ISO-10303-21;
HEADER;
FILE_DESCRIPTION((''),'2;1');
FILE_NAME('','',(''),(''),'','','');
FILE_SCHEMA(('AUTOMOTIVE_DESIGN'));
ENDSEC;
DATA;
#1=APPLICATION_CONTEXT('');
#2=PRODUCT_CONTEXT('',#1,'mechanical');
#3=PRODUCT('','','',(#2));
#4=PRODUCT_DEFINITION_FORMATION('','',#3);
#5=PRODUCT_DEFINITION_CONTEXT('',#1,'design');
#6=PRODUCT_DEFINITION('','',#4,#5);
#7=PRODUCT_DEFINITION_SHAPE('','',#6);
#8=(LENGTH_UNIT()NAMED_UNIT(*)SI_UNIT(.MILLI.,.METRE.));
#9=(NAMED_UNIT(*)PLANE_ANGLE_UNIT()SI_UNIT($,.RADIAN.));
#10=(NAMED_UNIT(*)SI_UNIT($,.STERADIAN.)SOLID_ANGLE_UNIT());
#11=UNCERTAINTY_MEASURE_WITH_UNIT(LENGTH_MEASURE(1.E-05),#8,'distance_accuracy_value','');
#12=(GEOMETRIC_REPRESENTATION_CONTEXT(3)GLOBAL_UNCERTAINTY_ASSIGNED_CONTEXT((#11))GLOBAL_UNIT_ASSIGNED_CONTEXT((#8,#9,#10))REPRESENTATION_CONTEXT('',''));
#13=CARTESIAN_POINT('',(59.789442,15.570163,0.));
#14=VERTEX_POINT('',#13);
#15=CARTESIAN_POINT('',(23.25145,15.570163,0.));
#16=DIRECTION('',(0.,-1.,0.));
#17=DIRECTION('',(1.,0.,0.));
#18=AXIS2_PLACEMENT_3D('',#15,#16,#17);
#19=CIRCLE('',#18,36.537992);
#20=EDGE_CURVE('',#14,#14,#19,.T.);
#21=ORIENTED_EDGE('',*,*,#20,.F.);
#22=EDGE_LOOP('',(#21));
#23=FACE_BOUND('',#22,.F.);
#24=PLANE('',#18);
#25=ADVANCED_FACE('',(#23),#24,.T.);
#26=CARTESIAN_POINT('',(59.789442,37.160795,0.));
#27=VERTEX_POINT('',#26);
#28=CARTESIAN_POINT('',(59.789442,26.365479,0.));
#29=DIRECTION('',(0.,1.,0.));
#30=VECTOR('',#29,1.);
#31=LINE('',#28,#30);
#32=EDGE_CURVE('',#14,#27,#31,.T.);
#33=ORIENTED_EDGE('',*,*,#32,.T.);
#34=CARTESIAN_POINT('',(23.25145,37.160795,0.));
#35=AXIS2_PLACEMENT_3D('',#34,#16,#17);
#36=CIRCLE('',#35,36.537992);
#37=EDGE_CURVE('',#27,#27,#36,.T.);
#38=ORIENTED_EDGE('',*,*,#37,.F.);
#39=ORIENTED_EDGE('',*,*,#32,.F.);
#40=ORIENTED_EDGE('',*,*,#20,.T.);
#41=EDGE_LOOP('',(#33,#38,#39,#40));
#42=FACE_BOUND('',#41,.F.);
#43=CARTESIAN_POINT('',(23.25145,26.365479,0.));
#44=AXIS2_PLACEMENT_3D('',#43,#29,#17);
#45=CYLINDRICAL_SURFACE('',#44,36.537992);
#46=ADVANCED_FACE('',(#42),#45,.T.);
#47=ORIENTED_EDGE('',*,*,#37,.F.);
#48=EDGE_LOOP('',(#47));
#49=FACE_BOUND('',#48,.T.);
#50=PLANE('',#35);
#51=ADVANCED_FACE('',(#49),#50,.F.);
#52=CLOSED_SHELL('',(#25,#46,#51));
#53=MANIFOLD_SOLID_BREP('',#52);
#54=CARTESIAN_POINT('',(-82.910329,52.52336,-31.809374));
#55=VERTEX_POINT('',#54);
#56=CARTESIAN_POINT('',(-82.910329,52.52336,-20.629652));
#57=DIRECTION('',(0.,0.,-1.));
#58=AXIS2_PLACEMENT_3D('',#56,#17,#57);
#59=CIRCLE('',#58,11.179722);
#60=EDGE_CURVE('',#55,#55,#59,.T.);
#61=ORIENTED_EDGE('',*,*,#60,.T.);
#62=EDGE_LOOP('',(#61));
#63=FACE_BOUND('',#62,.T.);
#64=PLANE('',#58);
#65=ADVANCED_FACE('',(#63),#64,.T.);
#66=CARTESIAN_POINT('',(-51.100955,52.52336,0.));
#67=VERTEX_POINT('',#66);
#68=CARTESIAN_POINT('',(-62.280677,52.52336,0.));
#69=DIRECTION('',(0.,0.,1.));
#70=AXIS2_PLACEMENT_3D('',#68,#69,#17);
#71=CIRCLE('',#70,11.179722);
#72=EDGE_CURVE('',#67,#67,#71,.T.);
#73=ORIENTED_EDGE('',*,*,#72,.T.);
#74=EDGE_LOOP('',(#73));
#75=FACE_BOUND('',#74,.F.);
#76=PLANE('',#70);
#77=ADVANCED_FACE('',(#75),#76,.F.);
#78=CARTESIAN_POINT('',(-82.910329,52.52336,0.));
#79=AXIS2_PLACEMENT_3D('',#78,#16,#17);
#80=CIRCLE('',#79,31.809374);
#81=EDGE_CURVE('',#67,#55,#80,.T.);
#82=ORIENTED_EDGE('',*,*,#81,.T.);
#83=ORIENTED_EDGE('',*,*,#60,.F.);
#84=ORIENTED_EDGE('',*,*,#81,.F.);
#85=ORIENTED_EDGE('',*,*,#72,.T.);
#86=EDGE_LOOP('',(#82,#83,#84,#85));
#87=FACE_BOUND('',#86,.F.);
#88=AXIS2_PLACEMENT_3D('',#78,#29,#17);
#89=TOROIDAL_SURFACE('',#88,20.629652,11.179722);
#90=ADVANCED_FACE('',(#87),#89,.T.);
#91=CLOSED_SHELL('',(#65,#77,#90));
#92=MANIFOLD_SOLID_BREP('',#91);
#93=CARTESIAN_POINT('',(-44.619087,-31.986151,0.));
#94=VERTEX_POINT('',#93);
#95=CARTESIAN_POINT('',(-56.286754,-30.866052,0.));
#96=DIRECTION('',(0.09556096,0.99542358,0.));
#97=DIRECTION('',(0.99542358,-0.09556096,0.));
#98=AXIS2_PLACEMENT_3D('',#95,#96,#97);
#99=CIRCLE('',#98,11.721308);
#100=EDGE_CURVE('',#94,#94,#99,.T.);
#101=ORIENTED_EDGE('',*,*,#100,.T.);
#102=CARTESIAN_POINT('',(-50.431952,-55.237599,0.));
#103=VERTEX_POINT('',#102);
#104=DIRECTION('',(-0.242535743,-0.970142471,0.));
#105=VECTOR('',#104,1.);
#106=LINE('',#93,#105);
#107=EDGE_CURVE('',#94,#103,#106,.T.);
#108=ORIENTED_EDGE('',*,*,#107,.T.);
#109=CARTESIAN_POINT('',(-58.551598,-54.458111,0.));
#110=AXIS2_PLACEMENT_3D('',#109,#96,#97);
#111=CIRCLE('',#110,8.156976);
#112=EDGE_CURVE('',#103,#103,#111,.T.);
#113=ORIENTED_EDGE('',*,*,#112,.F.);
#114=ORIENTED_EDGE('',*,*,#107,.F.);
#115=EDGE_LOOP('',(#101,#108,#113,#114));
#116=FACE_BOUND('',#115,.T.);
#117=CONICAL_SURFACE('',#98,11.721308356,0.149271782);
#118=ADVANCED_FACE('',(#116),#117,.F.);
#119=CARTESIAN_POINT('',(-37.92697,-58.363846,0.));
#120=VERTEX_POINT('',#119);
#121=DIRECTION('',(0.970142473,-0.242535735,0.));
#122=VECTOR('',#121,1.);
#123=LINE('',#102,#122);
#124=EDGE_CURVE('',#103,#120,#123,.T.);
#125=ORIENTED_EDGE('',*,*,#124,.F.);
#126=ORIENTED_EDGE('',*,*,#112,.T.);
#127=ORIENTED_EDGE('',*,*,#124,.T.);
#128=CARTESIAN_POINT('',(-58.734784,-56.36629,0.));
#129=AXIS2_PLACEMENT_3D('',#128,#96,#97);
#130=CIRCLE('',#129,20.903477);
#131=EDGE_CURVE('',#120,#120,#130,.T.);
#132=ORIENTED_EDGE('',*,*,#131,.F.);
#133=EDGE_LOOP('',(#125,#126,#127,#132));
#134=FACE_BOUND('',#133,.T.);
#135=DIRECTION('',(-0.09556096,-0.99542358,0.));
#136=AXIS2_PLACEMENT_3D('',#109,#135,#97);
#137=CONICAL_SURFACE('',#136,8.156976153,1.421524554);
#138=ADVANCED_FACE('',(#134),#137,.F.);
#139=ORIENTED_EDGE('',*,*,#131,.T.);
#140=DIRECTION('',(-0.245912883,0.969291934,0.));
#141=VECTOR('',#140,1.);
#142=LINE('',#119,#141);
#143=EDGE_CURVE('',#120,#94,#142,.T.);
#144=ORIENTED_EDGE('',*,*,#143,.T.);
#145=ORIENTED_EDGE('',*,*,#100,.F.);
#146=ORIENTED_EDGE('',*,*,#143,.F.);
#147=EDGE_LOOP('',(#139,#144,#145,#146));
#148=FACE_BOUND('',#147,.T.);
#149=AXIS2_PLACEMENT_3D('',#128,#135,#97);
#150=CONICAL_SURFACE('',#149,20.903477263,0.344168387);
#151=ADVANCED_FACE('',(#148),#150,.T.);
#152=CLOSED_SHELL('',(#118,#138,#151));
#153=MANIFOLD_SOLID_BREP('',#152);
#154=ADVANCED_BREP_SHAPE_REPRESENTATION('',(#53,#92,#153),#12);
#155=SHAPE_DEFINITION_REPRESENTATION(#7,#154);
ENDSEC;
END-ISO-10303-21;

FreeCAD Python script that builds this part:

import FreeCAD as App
import Part
import Sketcher

V = App.Vector

doc = App.newDocument("Part")
body = doc.addObject("PartDesign::Body", "Body")

sketch1 = body.newObject("Sketcher::SketchObject", "Sketch")
sketch1.AttachmentSupport = (doc.getObject("XY_Plane"), [""])
sketch1.MapMode = "FlatFace"
sketch1.addGeometry(Part.LineSegment(V(23, 37, 0), V(23, 16, 0)), False)
sketch1.addGeometry(Part.LineSegment(V(23, 16, 0), V(60, 16, 0)), False)
sketch1.addGeometry(Part.LineSegment(V(60, 16, 0), V(60, 37, 0)), False)
sketch1.addGeometry(Part.LineSegment(V(60, 37, 0), V(23, 37, 0)), False)
sketch1.addGeometry(Part.LineSegment(V(23, 37, 0), V(23, 16, 0)), True)
sketch1.addConstraint(Sketcher.Constraint("Coincident", 0, 2, 1, 1))
sketch1.addConstraint(Sketcher.Constraint("Coincident", 1, 2, 2, 1))
sketch1.addConstraint(Sketcher.Constraint("Coincident", 2, 2, 3, 1))
sketch1.addConstraint(Sketcher.Constraint("Coincident", 3, 2, 0, 1))
sketch1.addConstraint(Sketcher.Constraint("Vertical", 0))
sketch1.addConstraint(Sketcher.Constraint("Horizontal", 1))
sketch1.addConstraint(Sketcher.Constraint("Vertical", 2))
sketch1.addConstraint(Sketcher.Constraint("Horizontal", 3))
sketch1.addConstraint(Sketcher.Constraint("Vertical", 4))
sketch1.addConstraint(Sketcher.Constraint("Coincident", 4, 1, 3, 2))
sketch1.addConstraint(Sketcher.Constraint("Horizontal", 1, 2, 4, 2))
sketch1.addConstraint(Sketcher.Constraint("DistanceX", 1, 1, 1, 2, 36.537992))
sketch1.addConstraint(Sketcher.Constraint("DistanceY", 0, 2, 0, 1, 21.590633))
sketch1.addConstraint(Sketcher.Constraint("DistanceX", -1, 1, 0, 2, 23.25145))
sketch1.addConstraint(Sketcher.Constraint("DistanceY", -1, 1, 0, 2, 15.570163))
revolution = body.newObject("PartDesign::Revolution", "Revolution")
revolution.Profile = sketch1
revolution.ReferenceAxis = (sketch1, ["Axis0"])
revolution.Angle = 360
body2 = doc.addObject("PartDesign::Body", "Body001")

sketch2 = body2.newObject("Sketcher::SketchObject", "Sketch001")
sketch2.AttachmentSupport = (doc.getObject("XY_Plane001"), [""])
sketch2.MapMode = "FlatFace"
sketch2.addGeometry(Part.Circle(V(-62, 53, 0), V(0, 0, 1), 11), False)
sketch2.addGeometry(Part.LineSegment(V(-83, 53, 0), V(-83, 43, 0)), True)
sketch2.addConstraint(Sketcher.Constraint("Vertical", 1))
sketch2.addConstraint(Sketcher.Constraint("Horizontal", 0, 3, 1, 1))
sketch2.addConstraint(Sketcher.Constraint("DistanceY", 1, 2, 1, 1, 10.0))
sketch2.addConstraint(Sketcher.Constraint("Diameter", 0, 22.359444))
sketch2.addConstraint(Sketcher.Constraint("DistanceY", -1, 1, 0, 3, 52.52336))
sketch2.addConstraint(Sketcher.Constraint("DistanceX", 1, 1, -1, 1, 82.910329))
sketch2.addConstraint(Sketcher.Constraint("DistanceX", 0, 3, -1, 1, 62.280677))
revolution2 = body2.newObject("PartDesign::Revolution", "Revolution001")
revolution2.Profile = sketch2
revolution2.ReferenceAxis = (sketch2, ["Axis0"])
revolution2.Angle = 270
body3 = doc.addObject("PartDesign::Body", "Body002")

sketch3 = body3.newObject("Sketcher::SketchObject", "Sketch002")
sketch3.AttachmentSupport = (doc.getObject("XY_Plane002"), [""])
sketch3.MapMode = "FlatFace"
sketch3.addGeometry(Part.LineSegment(V(-38, -58, 0), V(-45, -32, 0)), False)
sketch3.addGeometry(Part.LineSegment(V(-45, -32, 0), V(-50, -55, 0)), False)
sketch3.addGeometry(Part.LineSegment(V(-50, -55, 0), V(-38, -58, 0)), False)
sketch3.addGeometry(Part.LineSegment(V(-59, -56, 0), V(-56, -31, 0)), True)
sketch3.addConstraint(Sketcher.Constraint("Coincident", 0, 2, 1, 1))
sketch3.addConstraint(Sketcher.Constraint("Coincident", 1, 2, 2, 1))
sketch3.addConstraint(Sketcher.Constraint("Coincident", 2, 2, 0, 1))
sketch3.addConstraint(Sketcher.Constraint("Perpendicular", 1, 2))
sketch3.addConstraint(Sketcher.Constraint("DistanceY", 1, 2, -1, 1, 55.237599))
sketch3.addConstraint(Sketcher.Constraint("DistanceY", 0, 2, 3, 2, 1.120099))
sketch3.addConstraint(Sketcher.Constraint("DistanceX", 3, 2, 1, 2, 5.854802))
sketch3.addConstraint(Sketcher.Constraint("Distance", 2, 12.889841))
sketch3.addConstraint(Sketcher.Constraint("DistanceY", 0, 2, -1, 1, 31.986151))
sketch3.addConstraint(Sketcher.Constraint("DistanceX", 2, 2, -1, 1, 37.92697))
sketch3.addConstraint(Sketcher.Constraint("DistanceY", 3, 1, -1, 1, 56.36629))
sketch3.addConstraint(Sketcher.Constraint("DistanceX", 3, 1, 3, 2, 2.44803))
sketch3.addConstraint(Sketcher.Constraint("Distance", 0, 27.213365))
revolution3 = body3.newObject("PartDesign::Revolution", "Revolution002")
revolution3.Profile = sketch3
revolution3.ReferenceAxis = (sketch3, ["Axis0"])
revolution3.Angle = 360

doc.recompute()
